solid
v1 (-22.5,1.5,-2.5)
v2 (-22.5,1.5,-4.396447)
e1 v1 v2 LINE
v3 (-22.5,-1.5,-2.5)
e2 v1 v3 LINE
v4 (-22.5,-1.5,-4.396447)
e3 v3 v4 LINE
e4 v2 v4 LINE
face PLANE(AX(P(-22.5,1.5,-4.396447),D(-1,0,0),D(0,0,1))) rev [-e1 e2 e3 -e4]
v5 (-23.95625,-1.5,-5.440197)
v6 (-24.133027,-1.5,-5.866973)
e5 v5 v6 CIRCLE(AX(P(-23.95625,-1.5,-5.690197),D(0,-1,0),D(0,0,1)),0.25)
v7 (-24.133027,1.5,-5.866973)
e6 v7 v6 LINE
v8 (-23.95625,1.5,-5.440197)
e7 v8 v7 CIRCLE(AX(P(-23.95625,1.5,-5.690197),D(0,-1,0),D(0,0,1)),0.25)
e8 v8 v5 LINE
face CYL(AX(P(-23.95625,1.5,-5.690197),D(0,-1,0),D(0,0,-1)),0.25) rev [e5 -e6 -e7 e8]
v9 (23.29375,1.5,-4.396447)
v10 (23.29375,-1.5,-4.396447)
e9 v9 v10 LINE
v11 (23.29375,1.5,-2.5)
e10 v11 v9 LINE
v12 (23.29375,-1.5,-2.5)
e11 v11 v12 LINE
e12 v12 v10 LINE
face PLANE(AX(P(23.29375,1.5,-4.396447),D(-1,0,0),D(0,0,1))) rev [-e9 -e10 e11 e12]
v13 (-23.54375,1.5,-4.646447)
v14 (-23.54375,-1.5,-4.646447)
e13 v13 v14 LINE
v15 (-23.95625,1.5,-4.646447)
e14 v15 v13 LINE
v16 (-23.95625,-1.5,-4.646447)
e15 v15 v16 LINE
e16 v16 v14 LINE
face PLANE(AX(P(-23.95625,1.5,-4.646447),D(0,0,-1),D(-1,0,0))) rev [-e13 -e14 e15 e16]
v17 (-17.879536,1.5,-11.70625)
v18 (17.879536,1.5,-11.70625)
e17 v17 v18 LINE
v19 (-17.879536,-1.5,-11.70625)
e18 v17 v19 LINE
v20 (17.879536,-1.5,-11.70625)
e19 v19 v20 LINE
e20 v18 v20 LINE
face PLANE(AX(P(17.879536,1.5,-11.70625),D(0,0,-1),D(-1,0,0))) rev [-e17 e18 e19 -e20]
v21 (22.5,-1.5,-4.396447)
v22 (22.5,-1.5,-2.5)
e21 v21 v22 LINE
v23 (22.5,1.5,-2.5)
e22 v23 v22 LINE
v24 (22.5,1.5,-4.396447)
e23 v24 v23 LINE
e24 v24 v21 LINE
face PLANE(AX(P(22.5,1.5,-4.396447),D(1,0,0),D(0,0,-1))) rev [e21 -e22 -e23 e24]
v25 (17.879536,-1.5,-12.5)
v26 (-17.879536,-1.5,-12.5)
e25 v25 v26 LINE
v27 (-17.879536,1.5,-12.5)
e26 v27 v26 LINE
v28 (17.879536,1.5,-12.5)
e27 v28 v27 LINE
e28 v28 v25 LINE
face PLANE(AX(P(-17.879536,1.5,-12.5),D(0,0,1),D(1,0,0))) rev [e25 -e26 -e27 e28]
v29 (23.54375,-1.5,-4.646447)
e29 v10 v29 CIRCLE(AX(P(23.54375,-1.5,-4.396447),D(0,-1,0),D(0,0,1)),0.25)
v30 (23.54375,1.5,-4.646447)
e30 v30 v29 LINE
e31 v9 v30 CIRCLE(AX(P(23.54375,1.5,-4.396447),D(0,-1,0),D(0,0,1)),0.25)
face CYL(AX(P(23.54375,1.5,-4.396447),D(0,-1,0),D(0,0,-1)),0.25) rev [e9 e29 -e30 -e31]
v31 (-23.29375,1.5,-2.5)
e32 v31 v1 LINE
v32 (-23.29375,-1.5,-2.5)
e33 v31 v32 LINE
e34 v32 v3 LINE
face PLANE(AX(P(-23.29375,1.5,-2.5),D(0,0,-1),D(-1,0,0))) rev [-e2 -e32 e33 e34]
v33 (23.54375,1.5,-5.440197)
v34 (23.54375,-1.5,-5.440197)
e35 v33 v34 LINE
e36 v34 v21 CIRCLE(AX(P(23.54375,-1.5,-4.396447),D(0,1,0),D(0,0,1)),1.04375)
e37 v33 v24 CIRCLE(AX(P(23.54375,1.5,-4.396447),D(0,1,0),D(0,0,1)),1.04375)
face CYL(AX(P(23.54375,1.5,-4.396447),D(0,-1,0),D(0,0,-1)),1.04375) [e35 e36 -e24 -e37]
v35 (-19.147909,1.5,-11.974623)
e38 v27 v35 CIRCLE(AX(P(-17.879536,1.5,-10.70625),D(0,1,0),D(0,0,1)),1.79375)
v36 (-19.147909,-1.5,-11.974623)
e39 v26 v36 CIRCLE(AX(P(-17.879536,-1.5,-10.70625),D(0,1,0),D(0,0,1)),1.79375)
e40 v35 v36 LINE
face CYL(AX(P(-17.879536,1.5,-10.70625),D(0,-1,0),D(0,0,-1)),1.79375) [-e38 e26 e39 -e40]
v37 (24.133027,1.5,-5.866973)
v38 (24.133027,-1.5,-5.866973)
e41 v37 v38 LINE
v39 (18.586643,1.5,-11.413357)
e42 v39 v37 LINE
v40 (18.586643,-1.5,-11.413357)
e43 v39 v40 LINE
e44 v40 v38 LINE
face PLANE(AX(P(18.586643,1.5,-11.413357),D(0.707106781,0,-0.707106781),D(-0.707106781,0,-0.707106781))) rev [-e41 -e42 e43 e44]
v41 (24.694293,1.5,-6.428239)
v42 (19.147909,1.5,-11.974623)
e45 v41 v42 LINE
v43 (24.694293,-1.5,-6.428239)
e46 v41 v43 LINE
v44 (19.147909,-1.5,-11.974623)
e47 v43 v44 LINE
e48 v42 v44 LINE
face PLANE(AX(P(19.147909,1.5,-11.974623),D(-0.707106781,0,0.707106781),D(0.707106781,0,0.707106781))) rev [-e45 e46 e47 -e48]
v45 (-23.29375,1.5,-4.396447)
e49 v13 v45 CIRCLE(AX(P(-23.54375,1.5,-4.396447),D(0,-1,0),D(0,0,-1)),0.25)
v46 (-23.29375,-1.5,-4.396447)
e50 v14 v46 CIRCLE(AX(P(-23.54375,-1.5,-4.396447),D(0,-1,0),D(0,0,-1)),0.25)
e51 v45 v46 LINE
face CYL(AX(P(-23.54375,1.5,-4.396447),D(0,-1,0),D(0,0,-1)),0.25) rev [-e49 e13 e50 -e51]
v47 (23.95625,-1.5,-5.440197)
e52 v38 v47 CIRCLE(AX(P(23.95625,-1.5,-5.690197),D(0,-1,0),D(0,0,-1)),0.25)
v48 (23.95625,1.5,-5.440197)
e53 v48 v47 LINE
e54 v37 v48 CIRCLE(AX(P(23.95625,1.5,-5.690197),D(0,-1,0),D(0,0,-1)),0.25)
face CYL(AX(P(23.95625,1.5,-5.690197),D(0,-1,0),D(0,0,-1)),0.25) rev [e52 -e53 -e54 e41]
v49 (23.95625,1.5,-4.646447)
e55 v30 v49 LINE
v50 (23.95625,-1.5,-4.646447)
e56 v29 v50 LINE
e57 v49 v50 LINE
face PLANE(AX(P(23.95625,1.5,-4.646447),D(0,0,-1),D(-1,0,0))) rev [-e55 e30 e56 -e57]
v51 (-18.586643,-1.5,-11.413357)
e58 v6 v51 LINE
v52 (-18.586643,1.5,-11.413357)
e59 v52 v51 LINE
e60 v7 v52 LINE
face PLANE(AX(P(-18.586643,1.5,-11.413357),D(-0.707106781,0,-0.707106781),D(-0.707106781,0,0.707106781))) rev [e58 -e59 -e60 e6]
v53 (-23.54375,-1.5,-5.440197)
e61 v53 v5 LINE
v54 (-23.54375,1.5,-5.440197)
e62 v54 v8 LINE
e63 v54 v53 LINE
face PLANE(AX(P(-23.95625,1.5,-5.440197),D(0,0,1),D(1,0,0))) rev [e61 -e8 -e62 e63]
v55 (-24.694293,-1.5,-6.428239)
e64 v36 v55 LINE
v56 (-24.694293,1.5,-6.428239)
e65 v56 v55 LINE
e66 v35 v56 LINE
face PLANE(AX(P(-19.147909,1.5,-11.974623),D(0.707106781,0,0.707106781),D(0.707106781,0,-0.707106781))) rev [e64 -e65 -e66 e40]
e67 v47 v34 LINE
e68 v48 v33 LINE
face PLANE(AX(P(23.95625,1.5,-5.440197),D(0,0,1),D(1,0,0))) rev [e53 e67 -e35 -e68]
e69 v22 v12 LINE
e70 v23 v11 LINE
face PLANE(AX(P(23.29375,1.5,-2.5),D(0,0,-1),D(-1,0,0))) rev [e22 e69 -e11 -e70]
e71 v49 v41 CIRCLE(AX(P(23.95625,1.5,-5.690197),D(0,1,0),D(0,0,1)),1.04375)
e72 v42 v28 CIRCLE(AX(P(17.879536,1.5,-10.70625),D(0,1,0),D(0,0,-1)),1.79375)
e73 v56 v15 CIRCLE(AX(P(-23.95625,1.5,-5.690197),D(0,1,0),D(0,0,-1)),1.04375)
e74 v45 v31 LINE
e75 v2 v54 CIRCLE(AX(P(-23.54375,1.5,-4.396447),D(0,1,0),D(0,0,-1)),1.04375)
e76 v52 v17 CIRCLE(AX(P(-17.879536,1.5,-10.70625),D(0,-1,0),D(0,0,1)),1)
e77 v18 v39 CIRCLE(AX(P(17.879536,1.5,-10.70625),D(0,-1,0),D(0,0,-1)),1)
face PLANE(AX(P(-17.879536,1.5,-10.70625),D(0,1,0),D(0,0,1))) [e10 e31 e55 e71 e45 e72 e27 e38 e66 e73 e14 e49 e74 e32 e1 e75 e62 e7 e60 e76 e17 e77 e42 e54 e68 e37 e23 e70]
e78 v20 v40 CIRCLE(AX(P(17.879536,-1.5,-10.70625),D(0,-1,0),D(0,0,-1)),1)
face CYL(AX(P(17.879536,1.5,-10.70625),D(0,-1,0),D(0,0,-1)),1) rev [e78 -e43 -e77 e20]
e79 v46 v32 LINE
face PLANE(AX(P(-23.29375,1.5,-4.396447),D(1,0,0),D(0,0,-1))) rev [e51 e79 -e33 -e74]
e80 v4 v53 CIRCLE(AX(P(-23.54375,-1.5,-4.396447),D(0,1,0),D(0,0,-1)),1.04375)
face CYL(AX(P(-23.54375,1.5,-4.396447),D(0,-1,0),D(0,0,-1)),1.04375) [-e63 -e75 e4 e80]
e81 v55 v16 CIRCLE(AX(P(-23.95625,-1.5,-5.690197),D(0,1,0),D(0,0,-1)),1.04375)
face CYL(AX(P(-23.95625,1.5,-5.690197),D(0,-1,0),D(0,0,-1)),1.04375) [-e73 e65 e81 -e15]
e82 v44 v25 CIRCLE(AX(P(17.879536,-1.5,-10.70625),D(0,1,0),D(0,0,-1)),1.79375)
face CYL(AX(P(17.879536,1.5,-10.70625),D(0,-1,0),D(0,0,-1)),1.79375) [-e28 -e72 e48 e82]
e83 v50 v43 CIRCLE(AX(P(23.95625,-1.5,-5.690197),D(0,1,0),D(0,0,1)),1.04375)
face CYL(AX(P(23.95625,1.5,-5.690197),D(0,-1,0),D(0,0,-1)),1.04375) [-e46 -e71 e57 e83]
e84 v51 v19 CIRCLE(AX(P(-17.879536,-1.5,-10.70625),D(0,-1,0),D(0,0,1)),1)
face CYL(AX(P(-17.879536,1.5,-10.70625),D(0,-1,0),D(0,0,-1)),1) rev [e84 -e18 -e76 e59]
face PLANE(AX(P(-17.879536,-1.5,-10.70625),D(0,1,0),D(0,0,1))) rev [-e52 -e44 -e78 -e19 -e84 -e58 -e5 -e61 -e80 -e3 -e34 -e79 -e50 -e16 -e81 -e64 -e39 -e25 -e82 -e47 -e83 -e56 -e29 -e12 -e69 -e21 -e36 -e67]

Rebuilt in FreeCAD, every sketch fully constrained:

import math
import FreeCAD as App
import Part
import Sketcher

V = App.Vector

doc = App.newDocument("Part")
body = doc.addObject("PartDesign::Body", "Body")

# Sketch on XZ plane
sketch1 = body.newObject("Sketcher::SketchObject", "Sketch")
sketch1.AttachmentSupport = (doc.getObject("XZ_Plane"), [""])
sketch1.MapMode = "FlatFace"
sketch1.addGeometry(Part.LineSegment(V(-17.879536, -11.70625, 0), V(17.879536, -11.70625, 0)), False)
sketch1.addGeometry(Part.ArcOfCircle(Part.Circle(V(17.879536, -10.70625, 0), V(0, 0, 1), 1), math.radians(-90), math.radians(-45)), False)
sketch1.addGeometry(Part.LineSegment(V(18.586643, -11.413357, 0), V(24.133027, -5.866973, 0)), False)
sketch1.addGeometry(Part.ArcOfCircle(Part.Circle(V(23.95625, -5.690197, 0), V(0, 0, 1), 0.25), math.radians(-45), math.radians(90)), False)
sketch1.addGeometry(Part.LineSegment(V(23.95625, -5.440197, 0), V(23.54375, -5.440197, 0)), False)
sketch1.addGeometry(Part.ArcOfCircle(Part.Circle(V(23.54375, -4.396447, 0), V(0, 0, 1), 1.04375), math.radians(180), math.radians(270)), False)
sketch1.addGeometry(Part.LineSegment(V(22.5, -4.396447, 0), V(22.5, -2.5, 0)), False)
sketch1.addGeometry(Part.LineSegment(V(22.5, -2.5, 0), V(23.29375, -2.5, 0)), False)
sketch1.addGeometry(Part.LineSegment(V(23.29375, -2.5, 0), V(23.29375, -4.396447, 0)), False)
sketch1.addGeometry(Part.ArcOfCircle(Part.Circle(V(23.54375, -4.396447, 0), V(0, 0, 1), 0.25), math.radians(180), math.radians(270)), False)
sketch1.addGeometry(Part.LineSegment(V(23.54375, -4.646447, 0), V(23.95625, -4.646447, 0)), False)
sketch1.addGeometry(Part.ArcOfCircle(Part.Circle(V(23.95625, -5.690197, 0), V(0, 0, 1), 1.04375), math.radians(-45), math.radians(90)), False)
sketch1.addGeometry(Part.LineSegment(V(24.694293, -6.428239, 0), V(19.147909, -11.974623, 0)), False)
sketch1.addGeometry(Part.ArcOfCircle(Part.Circle(V(17.879536, -10.70625, 0), V(0, 0, 1), 1.79375), math.radians(-90), math.radians(-45)), False)
sketch1.addGeometry(Part.LineSegment(V(17.879536, -12.5, 0), V(-17.879536, -12.5, 0)), False)
sketch1.addGeometry(Part.ArcOfCircle(Part.Circle(V(-17.879536, -10.70625, 0), V(0, 0, 1), 1.79375), math.radians(-135), math.radians(-90)), False)
sketch1.addGeometry(Part.LineSegment(V(-19.147909, -11.974623, 0), V(-24.694293, -6.428239, 0)), False)
sketch1.addGeometry(Part.ArcOfCircle(Part.Circle(V(-23.95625, -5.690197, 0), V(0, 0, 1), 1.04375), math.radians(90), math.radians(225)), False)
sketch1.addGeometry(Part.LineSegment(V(-23.95625, -4.646447, 0), V(-23.54375, -4.646447, 0)), False)
sketch1.addGeometry(Part.ArcOfCircle(Part.Circle(V(-23.54375, -4.396447, 0), V(0, 0, 1), 0.25), math.radians(-90), math.radians(0)), False)
sketch1.addGeometry(Part.LineSegment(V(-23.29375, -4.396447, 0), V(-23.29375, -2.5, 0)), False)
sketch1.addGeometry(Part.LineSegment(V(-23.29375, -2.5, 0), V(-22.5, -2.5, 0)), False)
sketch1.addGeometry(Part.LineSegment(V(-22.5, -2.5, 0), V(-22.5, -4.396447, 0)), False)
sketch1.addGeometry(Part.ArcOfCircle(Part.Circle(V(-23.54375, -4.396447, 0), V(0, 0, 1), 1.04375), math.radians(-90), math.radians(0)), False)
sketch1.addGeometry(Part.LineSegment(V(-23.54375, -5.440197, 0), V(-23.95625, -5.440197, 0)), False)
sketch1.addGeometry(Part.ArcOfCircle(Part.Circle(V(-23.95625, -5.690197, 0), V(0, 0, 1), 0.25), math.radians(90), math.radians(225)), False)
sketch1.addGeometry(Part.LineSegment(V(-24.133027, -5.866973, 0), V(-18.586643, -11.413357, 0)), False)
sketch1.addGeometry(Part.ArcOfCircle(Part.Circle(V(-17.879536, -10.70625, 0), V(0, 0, 1), 1), math.radians(-135), math.radians(-90)), False)
sketch1.addConstraint(Sketcher.Constraint("Tangent", 0, 2, 1, 1))
sketch1.addConstraint(Sketcher.Constraint("Tangent", 1, 2, 2, 1))
sketch1.addConstraint(Sketcher.Constraint("Tangent", 2, 2, 3, 1))
sketch1.addConstraint(Sketcher.Constraint("Tangent", 3, 2, 4, 1))
sketch1.addConstraint(Sketcher.Constraint("Tangent", 4, 2, 5, 2))
sketch1.addConstraint(Sketcher.Constraint("Tangent", 5, 1, 6, 1))
sketch1.addConstraint(Sketcher.Constraint("Coincident", 6, 2, 7, 1))
sketch1.addConstraint(Sketcher.Constraint("Coincident", 7, 2, 8, 1))
sketch1.addConstraint(Sketcher.Constraint("Tangent", 8, 2, 9, 1))
sketch1.addConstraint(Sketcher.Constraint("Tangent", 9, 2, 10, 1))
sketch1.addConstraint(Sketcher.Constraint("Tangent", 10, 2, 11, 2))
sketch1.addConstraint(Sketcher.Constraint("Tangent", 11, 1, 12, 1))
sketch1.addConstraint(Sketcher.Constraint("Tangent", 12, 2, 13, 2))
sketch1.addConstraint(Sketcher.Constraint("Tangent", 13, 1, 14, 1))
sketch1.addConstraint(Sketcher.Constraint("Tangent", 14, 2, 15, 2))
sketch1.addConstraint(Sketcher.Constraint("Tangent", 15, 1, 16, 1))
sketch1.addConstraint(Sketcher.Constraint("Tangent", 16, 2, 17, 2))
sketch1.addConstraint(Sketcher.Constraint("Tangent", 17, 1, 18, 1))
sketch1.addConstraint(Sketcher.Constraint("Tangent", 18, 2, 19, 1))
sketch1.addConstraint(Sketcher.Constraint("Tangent", 19, 2, 20, 1))
sketch1.addConstraint(Sketcher.Constraint("Coincident", 20, 2, 21, 1))
sketch1.addConstraint(Sketcher.Constraint("Coincident", 21, 2, 22, 1))
sketch1.addConstraint(Sketcher.Constraint("Tangent", 22, 2, 23, 2))
sketch1.addConstraint(Sketcher.Constraint("Tangent", 23, 1, 24, 1))
sketch1.addConstraint(Sketcher.Constraint("Tangent", 24, 2, 25, 1))
sketch1.addConstraint(Sketcher.Constraint("Tangent", 25, 2, 26, 1))
sketch1.addConstraint(Sketcher.Constraint("Tangent", 26, 2, 27, 1))
sketch1.addConstraint(Sketcher.Constraint("Tangent", 27, 2, 0, 1))
sketch1.addConstraint(Sketcher.Constraint("Horizontal", 0))
sketch1.addConstraint(Sketcher.Constraint("Horizontal", 4))
sketch1.addConstraint(Sketcher.Constraint("Vertical", 6))
sketch1.addConstraint(Sketcher.Constraint("Horizontal", 7))
sketch1.addConstraint(Sketcher.Constraint("Vertical", 8))
sketch1.addConstraint(Sketcher.Constraint("Horizontal", 10))
sketch1.addConstraint(Sketcher.Constraint("Horizontal", 14))
sketch1.addConstraint(Sketcher.Constraint("Horizontal", 18))
sketch1.addConstraint(Sketcher.Constraint("Vertical", 20))
sketch1.addConstraint(Sketcher.Constraint("Horizontal", 21))
sketch1.addConstraint(Sketcher.Constraint("Vertical", 22))
sketch1.addConstraint(Sketcher.Constraint("Horizontal", 24))
sketch1.addConstraint(Sketcher.Constraint("Coincident", 9, 3, 5, 3))
sketch1.addConstraint(Sketcher.Constraint("Coincident", 11, 3, 3, 3))
sketch1.addConstraint(Sketcher.Constraint("Coincident", 13, 3, 1, 3))
sketch1.addConstraint(Sketcher.Constraint("Coincident", 23, 3, 19, 3))
sketch1.addConstraint(Sketcher.Constraint("Coincident", 25, 3, 17, 3))
sketch1.addConstraint(Sketcher.Constraint("Coincident", 27, 3, 15, 3))
sketch1.addConstraint(Sketcher.Constraint("Equal", 3, 9))
sketch1.addConstraint(Sketcher.Constraint("Equal", 13, 15))
sketch1.addConstraint(Sketcher.Constraint("Equal", 11, 17))
sketch1.addConstraint(Sketcher.Constraint("Equal", 9, 19))
sketch1.addConstraint(Sketcher.Constraint("Equal", 17, 23))
sketch1.addConstraint(Sketcher.Constraint("Symmetric", 3, 3, 17, 3, -2))
sketch1.addConstraint(Sketcher.Constraint("Symmetric", 7, 2, 20, 2, -2))
sketch1.addConstraint(Sketcher.Constraint("Parallel", 2, 12))
sketch1.addConstraint(Sketcher.Constraint("Perpendicular", 12, 16))
sketch1.addConstraint(Sketcher.Constraint("Horizontal", 12, 2, 15, 1))
sketch1.addConstraint(Sketcher.Constraint("Radius", 1, 1.0))
sketch1.addConstraint(Sketcher.Constraint("Radius", 3, 0.25))
sketch1.addConstraint(Sketcher.Constraint("DistanceX", -1, 1, 5, 1, 22.5))
sketch1.addConstraint(Sketcher.Constraint("DistanceY", 6, 2, -1, 1, 2.5))
sketch1.addConstraint(Sketcher.Constraint("DistanceY", 13, 1, -1, 1, 12.5))
sketch1.addConstraint(Sketcher.Constraint("DistanceX", 17, 3, 9, 3, 47.5))
sketch1.addConstraint(Sketcher.Constraint("Radius", 5, 1.04375))
sketch1.addConstraint(Sketcher.Constraint("Distance", 2, 7.843771))
pad1 = body.newObject("PartDesign::Pad", "Pad")
pad1.Profile = sketch1
pad1.Length = 3
pad1.Midplane = True

doc.recompute()
